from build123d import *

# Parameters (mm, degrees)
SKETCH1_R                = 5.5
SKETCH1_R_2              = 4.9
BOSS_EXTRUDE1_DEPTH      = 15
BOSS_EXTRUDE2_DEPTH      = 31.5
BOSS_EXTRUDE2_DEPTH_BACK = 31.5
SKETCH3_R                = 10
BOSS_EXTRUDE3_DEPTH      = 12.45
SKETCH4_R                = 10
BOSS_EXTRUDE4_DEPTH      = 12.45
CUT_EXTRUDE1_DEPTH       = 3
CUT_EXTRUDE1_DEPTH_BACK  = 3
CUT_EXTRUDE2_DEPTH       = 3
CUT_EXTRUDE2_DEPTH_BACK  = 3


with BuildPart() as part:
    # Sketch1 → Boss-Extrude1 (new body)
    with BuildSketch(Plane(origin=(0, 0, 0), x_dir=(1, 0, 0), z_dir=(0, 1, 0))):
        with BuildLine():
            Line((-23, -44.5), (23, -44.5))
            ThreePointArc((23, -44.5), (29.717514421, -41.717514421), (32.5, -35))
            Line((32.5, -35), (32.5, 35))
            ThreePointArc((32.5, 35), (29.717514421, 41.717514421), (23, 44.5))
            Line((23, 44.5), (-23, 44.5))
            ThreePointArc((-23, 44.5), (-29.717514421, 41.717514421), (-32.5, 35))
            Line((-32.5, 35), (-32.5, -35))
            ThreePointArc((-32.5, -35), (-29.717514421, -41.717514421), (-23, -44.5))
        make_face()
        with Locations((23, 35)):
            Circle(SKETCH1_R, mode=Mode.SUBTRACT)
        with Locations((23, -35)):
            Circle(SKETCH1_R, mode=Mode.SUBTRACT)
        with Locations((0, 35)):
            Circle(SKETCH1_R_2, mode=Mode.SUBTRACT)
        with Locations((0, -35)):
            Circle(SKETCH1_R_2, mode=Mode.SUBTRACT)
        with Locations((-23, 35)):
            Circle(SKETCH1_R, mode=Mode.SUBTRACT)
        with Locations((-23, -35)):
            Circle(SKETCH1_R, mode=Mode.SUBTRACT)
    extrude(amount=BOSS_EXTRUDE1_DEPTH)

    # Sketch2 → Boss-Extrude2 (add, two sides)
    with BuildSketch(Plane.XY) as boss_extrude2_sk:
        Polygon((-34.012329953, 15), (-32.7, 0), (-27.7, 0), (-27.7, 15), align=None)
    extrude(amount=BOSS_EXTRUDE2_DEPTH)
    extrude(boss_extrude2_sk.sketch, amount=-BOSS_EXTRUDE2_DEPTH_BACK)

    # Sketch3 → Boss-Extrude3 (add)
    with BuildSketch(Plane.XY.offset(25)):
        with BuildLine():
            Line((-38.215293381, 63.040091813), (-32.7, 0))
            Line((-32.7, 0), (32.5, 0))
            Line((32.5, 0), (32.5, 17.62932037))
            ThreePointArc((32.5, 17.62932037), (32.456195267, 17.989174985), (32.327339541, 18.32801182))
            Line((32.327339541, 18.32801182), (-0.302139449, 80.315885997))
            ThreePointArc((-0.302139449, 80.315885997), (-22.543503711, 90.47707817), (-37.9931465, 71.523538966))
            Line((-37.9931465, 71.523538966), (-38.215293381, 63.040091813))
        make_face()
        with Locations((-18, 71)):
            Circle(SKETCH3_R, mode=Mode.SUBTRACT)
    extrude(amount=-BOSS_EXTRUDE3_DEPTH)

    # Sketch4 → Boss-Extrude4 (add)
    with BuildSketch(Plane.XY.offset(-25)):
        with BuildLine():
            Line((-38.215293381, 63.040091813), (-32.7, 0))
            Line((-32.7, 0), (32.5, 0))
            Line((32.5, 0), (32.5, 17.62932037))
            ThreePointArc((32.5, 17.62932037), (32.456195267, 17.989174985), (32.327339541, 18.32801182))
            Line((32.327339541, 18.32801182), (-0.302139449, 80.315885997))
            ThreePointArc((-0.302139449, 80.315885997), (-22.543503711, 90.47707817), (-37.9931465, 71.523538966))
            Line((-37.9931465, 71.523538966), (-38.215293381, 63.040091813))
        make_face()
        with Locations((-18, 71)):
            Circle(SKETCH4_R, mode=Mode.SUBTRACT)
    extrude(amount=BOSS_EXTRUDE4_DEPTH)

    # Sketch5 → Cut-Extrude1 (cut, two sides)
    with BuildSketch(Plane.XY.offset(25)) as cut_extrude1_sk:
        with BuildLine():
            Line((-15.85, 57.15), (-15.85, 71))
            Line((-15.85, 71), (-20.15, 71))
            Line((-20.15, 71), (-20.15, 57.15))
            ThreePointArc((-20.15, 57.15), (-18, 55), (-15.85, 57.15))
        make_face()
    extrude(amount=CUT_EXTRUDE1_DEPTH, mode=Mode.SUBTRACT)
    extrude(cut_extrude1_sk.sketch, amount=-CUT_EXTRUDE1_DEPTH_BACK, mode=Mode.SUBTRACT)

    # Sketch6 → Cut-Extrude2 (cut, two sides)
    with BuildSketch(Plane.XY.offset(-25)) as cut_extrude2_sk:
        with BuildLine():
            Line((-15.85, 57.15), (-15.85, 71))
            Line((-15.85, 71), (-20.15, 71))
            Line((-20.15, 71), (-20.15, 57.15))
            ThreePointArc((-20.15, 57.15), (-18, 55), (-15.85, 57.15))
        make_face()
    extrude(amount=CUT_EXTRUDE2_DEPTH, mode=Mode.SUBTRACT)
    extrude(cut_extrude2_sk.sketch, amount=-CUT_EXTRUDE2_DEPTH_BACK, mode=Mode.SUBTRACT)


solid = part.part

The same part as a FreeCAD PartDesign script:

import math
import FreeCAD as App
import Part
import Sketcher
from FreeCAD import Vector
Q = App.Units.Quantity

doc = App.newDocument("Part")
body = doc.addObject("PartDesign::Body", "Body")

# Sketch on XZ plane
sketch1 = body.newObject("Sketcher::SketchObject", "Sketch")
sketch1.AttachmentSupport = (doc.getObject("XZ_Plane"), [""])
sketch1.MapMode = "FlatFace"
sketch1.addGeometry([
    Part.LineSegment(Vector(-23, 44.5, 0), Vector(23, 44.5, 0)),  # 0
    Part.ArcOfCircle(Part.Circle(Vector(23, 35, 0), Vector(0, 0, 1), 9.5), math.radians(0), math.radians(90)),  # 1
    Part.LineSegment(Vector(32.5, 35, 0), Vector(32.5, -35, 0)),  # 2
    Part.ArcOfCircle(Part.Circle(Vector(23, -35, 0), Vector(0, 0, 1), 9.5), math.radians(-90), math.radians(0)),  # 3
    Part.LineSegment(Vector(23, -44.5, 0), Vector(-23, -44.5, 0)),  # 4
    Part.ArcOfCircle(Part.Circle(Vector(-23, -35, 0), Vector(0, 0, 1), 9.5), math.radians(-180), math.radians(-90)),  # 5
    Part.LineSegment(Vector(-32.5, -35, 0), Vector(-32.5, 35, 0)),  # 6
    Part.ArcOfCircle(Part.Circle(Vector(-23, 35, 0), Vector(0, 0, 1), 9.5), math.radians(90), math.radians(180)),  # 7
    Part.Circle(Vector(-23, 35, 0), Vector(0, 0, 1), 5.5),  # 8
    Part.Circle(Vector(0, 35, 0), Vector(0, 0, 1), 4.9),  # 9
    Part.Circle(Vector(23, 35, 0), Vector(0, 0, 1), 5.5),  # 10
    Part.Circle(Vector(-23, -35, 0), Vector(0, 0, 1), 5.5),  # 11
    Part.Circle(Vector(0, -35, 0), Vector(0, 0, 1), 4.9),  # 12
    Part.Circle(Vector(23, -35, 0), Vector(0, 0, 1), 5.5),  # 13
], False)
sketch1.addConstraint([
    Sketcher.Constraint("Tangent", 0, 2, 1, 2),
    Sketcher.Constraint("Tangent", 1, 1, 2, 1),
    Sketcher.Constraint("Tangent", 2, 2, 3, 2),
    Sketcher.Constraint("Tangent", 3, 1, 4, 1),
    Sketcher.Constraint("Tangent", 4, 2, 5, 2),
    Sketcher.Constraint("Tangent", 5, 1, 6, 1),
    Sketcher.Constraint("Tangent", 6, 2, 7, 2),
    Sketcher.Constraint("Tangent", 7, 1, 0, 1),
    Sketcher.Constraint("Horizontal", 0),
    Sketcher.Constraint("Vertical", 2),
    Sketcher.Constraint("Horizontal", 4),
    Sketcher.Constraint("Vertical", 6),
    Sketcher.Constraint("Coincident", 8, 3, 7, 3),
    Sketcher.Constraint("Coincident", 10, 3, 1, 3),
    Sketcher.Constraint("Coincident", 11, 3, 5, 3),
    Sketcher.Constraint("Coincident", 13, 3, 3, 3),
    Sketcher.Constraint("Equal", 1, 3),
    Sketcher.Constraint("Equal", 3, 5),
    Sketcher.Constraint("Equal", 5, 7),
    Sketcher.Constraint("Equal", 8, 10),
    Sketcher.Constraint("Equal", 10, 11),
    Sketcher.Constraint("Equal", 9, 12),
    Sketcher.Constraint("Equal", 11, 13),
    Sketcher.Constraint("Symmetric", 1, 3, 5, 3, -1, 1),
    Sketcher.Constraint("Symmetric", 9, 3, 12, 3, -1, 1),
    Sketcher.Constraint("PointOnObject", 9, 3, -2),
    Sketcher.Constraint("Horizontal", 8, 3, 9, 3),
    Sketcher.Constraint("Diameter", 8, Q("11 mm")),
    Sketcher.Constraint("Diameter", 9, Q("9.8 mm")),
    Sketcher.Constraint("Radius", 1, Q("9.5 mm")),
    Sketcher.Constraint("DistanceX", 0, 1, 0, 2, Q("46 mm")),
    Sketcher.Constraint("DistanceY", 2, 2, 2, 1, Q("70 mm")),
])
pad1 = body.newObject("PartDesign::Pad", "Pad")
pad1.Profile = sketch1
pad1.Length = 15
pad1.Reversed = True

# Sketch on XY plane
sketch2 = body.newObject("Sketcher::SketchObject", "Sketch001")
sketch2.AttachmentSupport = (doc.getObject("XY_Plane"), [""])
sketch2.MapMode = "FlatFace"
sketch2.addGeometry([
    Part.LineSegment(Vector(-34.01233, 15, 0), Vector(-32.7, 0, 0)),
    Part.LineSegment(Vector(-32.7, 0, 0), Vector(-27.7, 0, 0)),
    Part.LineSegment(Vector(-27.7, 0, 0), Vector(-27.7, 15, 0)),
    Part.LineSegment(Vector(-27.7, 15, 0), Vector(-34.01233, 15, 0)),
], False)
sketch2.addConstraint([
    Sketcher.Constraint("Coincident", 0, 2, 1, 1),
    Sketcher.Constraint("Coincident", 1, 2, 2, 1),
    Sketcher.Constraint("Coincident", 2, 2, 3, 1),
    Sketcher.Constraint("Coincident", 3, 2, 0, 1),
    Sketcher.Constraint("Horizontal", 1),
    Sketcher.Constraint("Vertical", 2),
    Sketcher.Constraint("Horizontal", 3),
    Sketcher.Constraint("PointOnObject", 0, 2, -1),
    Sketcher.Constraint("DistanceX", 1, 1, 1, 2, Q("5 mm")),
    Sketcher.Constraint("DistanceY", 2, 1, 2, 2, Q("15 mm")),
    Sketcher.Constraint("Angle", 0, Q("-85 deg")),
    Sketcher.Constraint("DistanceX", 0, 2, -1, 1, Q("32.7 mm")),
])
pad2 = body.newObject("PartDesign::Pad", "Pad001")
pad2.Profile = sketch2
pad2.Type = "TwoLengths"
pad2.Length = 31.5
pad2.Length2 = 31.5

# Sketch on XY plane
sketch3 = body.newObject("Sketcher::SketchObject", "Sketch002")
sketch3.AttachmentSupport = (doc.getObject("XY_Plane"), [""])
sketch3.MapMode = "FlatFace"
sketch3.AttachmentOffset = App.Placement(Vector(0, 0, 25), App.Rotation())
sketch3.addGeometry([
    Part.LineSegment(Vector(-38.215293, 63.040092, 0), Vector(-32.7, 0, 0)),  # 0
    Part.LineSegment(Vector(-32.7, 0, 0), Vector(32.5, 0, 0)),  # 1
    Part.LineSegment(Vector(32.5, 0, 0), Vector(32.5, 17.62932, 0)),  # 2
    Part.ArcOfCircle(Part.Circle(Vector(31, 17.62932, 0), Vector(0, 0, 1), 1.5), math.radians(0), math.radians(27.76164)),  # 3
    Part.LineSegment(Vector(32.32734, 18.328012, 0), Vector(-0.302139, 80.315886, 0)),  # 4
    Part.ArcOfCircle(Part.Circle(Vector(-18, 71, 0), Vector(0, 0, 1), 20), math.radians(27.76164), math.radians(178.5)),  # 5
    Part.LineSegment(Vector(-37.993147, 71.523539, 0), Vector(-38.215293, 63.040092, 0)),  # 6
    Part.Circle(Vector(-18, 71, 0), Vector(0, 0, 1), 10),  # 7
], False)
sketch3.addConstraint([
    Sketcher.Constraint("Coincident", 0, 2, 1, 1),
    Sketcher.Constraint("Coincident", 1, 2, 2, 1),
    Sketcher.Constraint("Tangent", 2, 2, 3, 1),
    Sketcher.Constraint("Tangent", 3, 2, 4, 1),
    Sketcher.Constraint("Tangent", 4, 2, 5, 1),
    Sketcher.Constraint("Tangent", 5, 2, 6, 1),
    Sketcher.Constraint("Coincident", 6, 2, 0, 1),
    Sketcher.Constraint("Horizontal", 1),
    Sketcher.Constraint("Vertical", 2),
    Sketcher.Constraint("Coincident", 7, 3, 5, 3),
    Sketcher.Constraint("PointOnObject", 0, 2, -1),
    Sketcher.Constraint("Diameter", 7, Q("20 mm")),
    Sketcher.Constraint("Radius", 5, Q("20 mm")),
    Sketcher.Constraint("Radius", 3, Q("1.5 mm")),
    Sketcher.Constraint("Angle", 0, Q("-85 deg")),
    Sketcher.Constraint("DistanceX", 1, 1, 1, 2, Q("65.2 mm")),
    Sketcher.Constraint("DistanceX", -1, 1, 3, 3, Q("31 mm")),
    Sketcher.Constraint("DistanceX", 5, 3, -1, 1, Q("18 mm")),
    Sketcher.Constraint("DistanceY", -1, 1, 5, 3, Q("71 mm")),
    Sketcher.Constraint("Angle", 6, Q("-91.5 deg")),
    Sketcher.Constraint("DistanceY", 2, 1, 2, 2, Q("17.62932 mm")),
])
pad3 = body.newObject("PartDesign::Pad", "Pad002")
pad3.Profile = sketch3
pad3.Length = 12.45
pad3.Reversed = True

# Sketch on XY plane
sketch4 = body.newObject("Sketcher::SketchObject", "Sketch003")
sketch4.AttachmentSupport = (doc.getObject("XY_Plane"), [""])
sketch4.MapMode = "FlatFace"
sketch4.AttachmentOffset = App.Placement(Vector(0, 0, -25), App.Rotation())
sketch4.addGeometry([
    Part.LineSegment(Vector(-38.215293, 63.040092, 0), Vector(-32.7, 0, 0)),  # 0
    Part.LineSegment(Vector(-32.7, 0, 0), Vector(32.5, 0, 0)),  # 1
    Part.LineSegment(Vector(32.5, 0, 0), Vector(32.5, 17.62932, 0)),  # 2
    Part.ArcOfCircle(Part.Circle(Vector(31, 17.62932, 0), Vector(0, 0, 1), 1.5), math.radians(0), math.radians(27.76164)),  # 3
    Part.LineSegment(Vector(32.32734, 18.328012, 0), Vector(-0.302139, 80.315886, 0)),  # 4
    Part.ArcOfCircle(Part.Circle(Vector(-18, 71, 0), Vector(0, 0, 1), 20), math.radians(27.76164), math.radians(178.5)),  # 5
    Part.LineSegment(Vector(-37.993147, 71.523539, 0), Vector(-38.215293, 63.040092, 0)),  # 6
    Part.Circle(Vector(-18, 71, 0), Vector(0, 0, 1), 10),  # 7
], False)
sketch4.addConstraint([
    Sketcher.Constraint("Coincident", 0, 2, 1, 1),
    Sketcher.Constraint("Coincident", 1, 2, 2, 1),
    Sketcher.Constraint("Tangent", 2, 2, 3, 1),
    Sketcher.Constraint("Tangent", 3, 2, 4, 1),
    Sketcher.Constraint("Tangent", 4, 2, 5, 1),
    Sketcher.Constraint("Tangent", 5, 2, 6, 1),
    Sketcher.Constraint("Coincident", 6, 2, 0, 1),
    Sketcher.Constraint("Horizontal", 1),
    Sketcher.Constraint("Vertical", 2),
    Sketcher.Constraint("Coincident", 7, 3, 5, 3),
    Sketcher.Constraint("PointOnObject", 0, 2, -1),
    Sketcher.Constraint("Diameter", 7, Q("20 mm")),
    Sketcher.Constraint("Radius", 5, Q("20 mm")),
    Sketcher.Constraint("Radius", 3, Q("1.5 mm")),
    Sketcher.Constraint("Angle", 0, Q("-85 deg")),
    Sketcher.Constraint("DistanceX", 1, 1, 1, 2, Q("65.2 mm")),
    Sketcher.Constraint("DistanceX", -1, 1, 3, 3, Q("31 mm")),
    Sketcher.Constraint("DistanceX", 5, 3, -1, 1, Q("18 mm")),
    Sketcher.Constraint("DistanceY", -1, 1, 5, 3, Q("71 mm")),
    Sketcher.Constraint("Angle", 6, Q("-91.5 deg")),
    Sketcher.Constraint("DistanceY", 2, 1, 2, 2, Q("17.62932 mm")),
])
pad4 = body.newObject("PartDesign::Pad", "Pad003")
pad4.Profile = sketch4
pad4.Length = 12.45

# Sketch on XY plane
sketch5 = body.newObject("Sketcher::SketchObject", "Sketch004")
sketch5.AttachmentSupport = (doc.getObject("XY_Plane"), [""])
sketch5.MapMode = "FlatFace"
sketch5.AttachmentOffset = App.Placement(Vector(0, 0, 25), App.Rotation())
sketch5.addGeometry([
    Part.LineSegment(Vector(-15.85, 57.15, 0), Vector(-15.85, 71, 0)),
    Part.LineSegment(Vector(-15.85, 71, 0), Vector(-20.15, 71, 0)),
    Part.LineSegment(Vector(-20.15, 71, 0), Vector(-20.15, 57.15, 0)),
    Part.ArcOfCircle(Part.Circle(Vector(-18, 57.15, 0), Vector(0, 0, 1), 2.15), math.radians(180), math.radians(360)),
], False)
sketch5.addConstraint([
    Sketcher.Constraint("Coincident", 0, 2, 1, 1),
    Sketcher.Constraint("Coincident", 1, 2, 2, 1),
    Sketcher.Constraint("Tangent", 2, 2, 3, 1),
    Sketcher.Constraint("Tangent", 3, 2, 0, 1),
    Sketcher.Constraint("Vertical", 0),
    Sketcher.Constraint("Horizontal", 1),
    Sketcher.Constraint("Vertical", 2),
    Sketcher.Constraint("Radius", 3, Q("2.15 mm")),
    Sketcher.Constraint("DistanceX", 3, 3, -1, 1, Q("18 mm")),
    Sketcher.Constraint("DistanceY", -1, 1, 0, 2, Q("71 mm")),
    Sketcher.Constraint("DistanceY", 0, 1, 0, 2, Q("13.85 mm")),
])
pocket1 = body.newObject("PartDesign::Pocket", "Pocket")
pocket1.Profile = sketch5
pocket1.Type = "TwoLengths"
pocket1.Length = 3
pocket1.Length2 = 3
pocket1.Reversed = True

# Sketch on XY plane
sketch6 = body.newObject("Sketcher::SketchObject", "Sketch005")
sketch6.AttachmentSupport = (doc.getObject("XY_Plane"), [""])
sketch6.MapMode = "FlatFace"
sketch6.AttachmentOffset = App.Placement(Vector(0, 0, -25), App.Rotation())
sketch6.addGeometry([
    Part.LineSegment(Vector(-15.85, 57.15, 0), Vector(-15.85, 71, 0)),
    Part.LineSegment(Vector(-15.85, 71, 0), Vector(-20.15, 71, 0)),
    Part.LineSegment(Vector(-20.15, 71, 0), Vector(-20.15, 57.15, 0)),
    Part.ArcOfCircle(Part.Circle(Vector(-18, 57.15, 0), Vector(0, 0, 1), 2.15), math.radians(180), math.radians(360)),
], False)
sketch6.addConstraint([
    Sketcher.Constraint("Coincident", 0, 2, 1, 1),
    Sketcher.Constraint("Coincident", 1, 2, 2, 1),
    Sketcher.Constraint("Tangent", 2, 2, 3, 1),
    Sketcher.Constraint("Tangent", 3, 2, 0, 1),
    Sketcher.Constraint("Vertical", 0),
    Sketcher.Constraint("Horizontal", 1),
    Sketcher.Constraint("Vertical", 2),
    Sketcher.Constraint("Radius", 3, Q("2.15 mm")),
    Sketcher.Constraint("DistanceX", 3, 3, -1, 1, Q("18 mm")),
    Sketcher.Constraint("DistanceY", -1, 1, 0, 2, Q("71 mm")),
    Sketcher.Constraint("DistanceY", 0, 1, 0, 2, Q("13.85 mm")),
])
pocket2 = body.newObject("PartDesign::Pocket", "Pocket001")
pocket2.Profile = sketch6
pocket2.Type = "TwoLengths"
pocket2.Length = 3
pocket2.Length2 = 3
pocket2.Reversed = True

doc.recompute()
